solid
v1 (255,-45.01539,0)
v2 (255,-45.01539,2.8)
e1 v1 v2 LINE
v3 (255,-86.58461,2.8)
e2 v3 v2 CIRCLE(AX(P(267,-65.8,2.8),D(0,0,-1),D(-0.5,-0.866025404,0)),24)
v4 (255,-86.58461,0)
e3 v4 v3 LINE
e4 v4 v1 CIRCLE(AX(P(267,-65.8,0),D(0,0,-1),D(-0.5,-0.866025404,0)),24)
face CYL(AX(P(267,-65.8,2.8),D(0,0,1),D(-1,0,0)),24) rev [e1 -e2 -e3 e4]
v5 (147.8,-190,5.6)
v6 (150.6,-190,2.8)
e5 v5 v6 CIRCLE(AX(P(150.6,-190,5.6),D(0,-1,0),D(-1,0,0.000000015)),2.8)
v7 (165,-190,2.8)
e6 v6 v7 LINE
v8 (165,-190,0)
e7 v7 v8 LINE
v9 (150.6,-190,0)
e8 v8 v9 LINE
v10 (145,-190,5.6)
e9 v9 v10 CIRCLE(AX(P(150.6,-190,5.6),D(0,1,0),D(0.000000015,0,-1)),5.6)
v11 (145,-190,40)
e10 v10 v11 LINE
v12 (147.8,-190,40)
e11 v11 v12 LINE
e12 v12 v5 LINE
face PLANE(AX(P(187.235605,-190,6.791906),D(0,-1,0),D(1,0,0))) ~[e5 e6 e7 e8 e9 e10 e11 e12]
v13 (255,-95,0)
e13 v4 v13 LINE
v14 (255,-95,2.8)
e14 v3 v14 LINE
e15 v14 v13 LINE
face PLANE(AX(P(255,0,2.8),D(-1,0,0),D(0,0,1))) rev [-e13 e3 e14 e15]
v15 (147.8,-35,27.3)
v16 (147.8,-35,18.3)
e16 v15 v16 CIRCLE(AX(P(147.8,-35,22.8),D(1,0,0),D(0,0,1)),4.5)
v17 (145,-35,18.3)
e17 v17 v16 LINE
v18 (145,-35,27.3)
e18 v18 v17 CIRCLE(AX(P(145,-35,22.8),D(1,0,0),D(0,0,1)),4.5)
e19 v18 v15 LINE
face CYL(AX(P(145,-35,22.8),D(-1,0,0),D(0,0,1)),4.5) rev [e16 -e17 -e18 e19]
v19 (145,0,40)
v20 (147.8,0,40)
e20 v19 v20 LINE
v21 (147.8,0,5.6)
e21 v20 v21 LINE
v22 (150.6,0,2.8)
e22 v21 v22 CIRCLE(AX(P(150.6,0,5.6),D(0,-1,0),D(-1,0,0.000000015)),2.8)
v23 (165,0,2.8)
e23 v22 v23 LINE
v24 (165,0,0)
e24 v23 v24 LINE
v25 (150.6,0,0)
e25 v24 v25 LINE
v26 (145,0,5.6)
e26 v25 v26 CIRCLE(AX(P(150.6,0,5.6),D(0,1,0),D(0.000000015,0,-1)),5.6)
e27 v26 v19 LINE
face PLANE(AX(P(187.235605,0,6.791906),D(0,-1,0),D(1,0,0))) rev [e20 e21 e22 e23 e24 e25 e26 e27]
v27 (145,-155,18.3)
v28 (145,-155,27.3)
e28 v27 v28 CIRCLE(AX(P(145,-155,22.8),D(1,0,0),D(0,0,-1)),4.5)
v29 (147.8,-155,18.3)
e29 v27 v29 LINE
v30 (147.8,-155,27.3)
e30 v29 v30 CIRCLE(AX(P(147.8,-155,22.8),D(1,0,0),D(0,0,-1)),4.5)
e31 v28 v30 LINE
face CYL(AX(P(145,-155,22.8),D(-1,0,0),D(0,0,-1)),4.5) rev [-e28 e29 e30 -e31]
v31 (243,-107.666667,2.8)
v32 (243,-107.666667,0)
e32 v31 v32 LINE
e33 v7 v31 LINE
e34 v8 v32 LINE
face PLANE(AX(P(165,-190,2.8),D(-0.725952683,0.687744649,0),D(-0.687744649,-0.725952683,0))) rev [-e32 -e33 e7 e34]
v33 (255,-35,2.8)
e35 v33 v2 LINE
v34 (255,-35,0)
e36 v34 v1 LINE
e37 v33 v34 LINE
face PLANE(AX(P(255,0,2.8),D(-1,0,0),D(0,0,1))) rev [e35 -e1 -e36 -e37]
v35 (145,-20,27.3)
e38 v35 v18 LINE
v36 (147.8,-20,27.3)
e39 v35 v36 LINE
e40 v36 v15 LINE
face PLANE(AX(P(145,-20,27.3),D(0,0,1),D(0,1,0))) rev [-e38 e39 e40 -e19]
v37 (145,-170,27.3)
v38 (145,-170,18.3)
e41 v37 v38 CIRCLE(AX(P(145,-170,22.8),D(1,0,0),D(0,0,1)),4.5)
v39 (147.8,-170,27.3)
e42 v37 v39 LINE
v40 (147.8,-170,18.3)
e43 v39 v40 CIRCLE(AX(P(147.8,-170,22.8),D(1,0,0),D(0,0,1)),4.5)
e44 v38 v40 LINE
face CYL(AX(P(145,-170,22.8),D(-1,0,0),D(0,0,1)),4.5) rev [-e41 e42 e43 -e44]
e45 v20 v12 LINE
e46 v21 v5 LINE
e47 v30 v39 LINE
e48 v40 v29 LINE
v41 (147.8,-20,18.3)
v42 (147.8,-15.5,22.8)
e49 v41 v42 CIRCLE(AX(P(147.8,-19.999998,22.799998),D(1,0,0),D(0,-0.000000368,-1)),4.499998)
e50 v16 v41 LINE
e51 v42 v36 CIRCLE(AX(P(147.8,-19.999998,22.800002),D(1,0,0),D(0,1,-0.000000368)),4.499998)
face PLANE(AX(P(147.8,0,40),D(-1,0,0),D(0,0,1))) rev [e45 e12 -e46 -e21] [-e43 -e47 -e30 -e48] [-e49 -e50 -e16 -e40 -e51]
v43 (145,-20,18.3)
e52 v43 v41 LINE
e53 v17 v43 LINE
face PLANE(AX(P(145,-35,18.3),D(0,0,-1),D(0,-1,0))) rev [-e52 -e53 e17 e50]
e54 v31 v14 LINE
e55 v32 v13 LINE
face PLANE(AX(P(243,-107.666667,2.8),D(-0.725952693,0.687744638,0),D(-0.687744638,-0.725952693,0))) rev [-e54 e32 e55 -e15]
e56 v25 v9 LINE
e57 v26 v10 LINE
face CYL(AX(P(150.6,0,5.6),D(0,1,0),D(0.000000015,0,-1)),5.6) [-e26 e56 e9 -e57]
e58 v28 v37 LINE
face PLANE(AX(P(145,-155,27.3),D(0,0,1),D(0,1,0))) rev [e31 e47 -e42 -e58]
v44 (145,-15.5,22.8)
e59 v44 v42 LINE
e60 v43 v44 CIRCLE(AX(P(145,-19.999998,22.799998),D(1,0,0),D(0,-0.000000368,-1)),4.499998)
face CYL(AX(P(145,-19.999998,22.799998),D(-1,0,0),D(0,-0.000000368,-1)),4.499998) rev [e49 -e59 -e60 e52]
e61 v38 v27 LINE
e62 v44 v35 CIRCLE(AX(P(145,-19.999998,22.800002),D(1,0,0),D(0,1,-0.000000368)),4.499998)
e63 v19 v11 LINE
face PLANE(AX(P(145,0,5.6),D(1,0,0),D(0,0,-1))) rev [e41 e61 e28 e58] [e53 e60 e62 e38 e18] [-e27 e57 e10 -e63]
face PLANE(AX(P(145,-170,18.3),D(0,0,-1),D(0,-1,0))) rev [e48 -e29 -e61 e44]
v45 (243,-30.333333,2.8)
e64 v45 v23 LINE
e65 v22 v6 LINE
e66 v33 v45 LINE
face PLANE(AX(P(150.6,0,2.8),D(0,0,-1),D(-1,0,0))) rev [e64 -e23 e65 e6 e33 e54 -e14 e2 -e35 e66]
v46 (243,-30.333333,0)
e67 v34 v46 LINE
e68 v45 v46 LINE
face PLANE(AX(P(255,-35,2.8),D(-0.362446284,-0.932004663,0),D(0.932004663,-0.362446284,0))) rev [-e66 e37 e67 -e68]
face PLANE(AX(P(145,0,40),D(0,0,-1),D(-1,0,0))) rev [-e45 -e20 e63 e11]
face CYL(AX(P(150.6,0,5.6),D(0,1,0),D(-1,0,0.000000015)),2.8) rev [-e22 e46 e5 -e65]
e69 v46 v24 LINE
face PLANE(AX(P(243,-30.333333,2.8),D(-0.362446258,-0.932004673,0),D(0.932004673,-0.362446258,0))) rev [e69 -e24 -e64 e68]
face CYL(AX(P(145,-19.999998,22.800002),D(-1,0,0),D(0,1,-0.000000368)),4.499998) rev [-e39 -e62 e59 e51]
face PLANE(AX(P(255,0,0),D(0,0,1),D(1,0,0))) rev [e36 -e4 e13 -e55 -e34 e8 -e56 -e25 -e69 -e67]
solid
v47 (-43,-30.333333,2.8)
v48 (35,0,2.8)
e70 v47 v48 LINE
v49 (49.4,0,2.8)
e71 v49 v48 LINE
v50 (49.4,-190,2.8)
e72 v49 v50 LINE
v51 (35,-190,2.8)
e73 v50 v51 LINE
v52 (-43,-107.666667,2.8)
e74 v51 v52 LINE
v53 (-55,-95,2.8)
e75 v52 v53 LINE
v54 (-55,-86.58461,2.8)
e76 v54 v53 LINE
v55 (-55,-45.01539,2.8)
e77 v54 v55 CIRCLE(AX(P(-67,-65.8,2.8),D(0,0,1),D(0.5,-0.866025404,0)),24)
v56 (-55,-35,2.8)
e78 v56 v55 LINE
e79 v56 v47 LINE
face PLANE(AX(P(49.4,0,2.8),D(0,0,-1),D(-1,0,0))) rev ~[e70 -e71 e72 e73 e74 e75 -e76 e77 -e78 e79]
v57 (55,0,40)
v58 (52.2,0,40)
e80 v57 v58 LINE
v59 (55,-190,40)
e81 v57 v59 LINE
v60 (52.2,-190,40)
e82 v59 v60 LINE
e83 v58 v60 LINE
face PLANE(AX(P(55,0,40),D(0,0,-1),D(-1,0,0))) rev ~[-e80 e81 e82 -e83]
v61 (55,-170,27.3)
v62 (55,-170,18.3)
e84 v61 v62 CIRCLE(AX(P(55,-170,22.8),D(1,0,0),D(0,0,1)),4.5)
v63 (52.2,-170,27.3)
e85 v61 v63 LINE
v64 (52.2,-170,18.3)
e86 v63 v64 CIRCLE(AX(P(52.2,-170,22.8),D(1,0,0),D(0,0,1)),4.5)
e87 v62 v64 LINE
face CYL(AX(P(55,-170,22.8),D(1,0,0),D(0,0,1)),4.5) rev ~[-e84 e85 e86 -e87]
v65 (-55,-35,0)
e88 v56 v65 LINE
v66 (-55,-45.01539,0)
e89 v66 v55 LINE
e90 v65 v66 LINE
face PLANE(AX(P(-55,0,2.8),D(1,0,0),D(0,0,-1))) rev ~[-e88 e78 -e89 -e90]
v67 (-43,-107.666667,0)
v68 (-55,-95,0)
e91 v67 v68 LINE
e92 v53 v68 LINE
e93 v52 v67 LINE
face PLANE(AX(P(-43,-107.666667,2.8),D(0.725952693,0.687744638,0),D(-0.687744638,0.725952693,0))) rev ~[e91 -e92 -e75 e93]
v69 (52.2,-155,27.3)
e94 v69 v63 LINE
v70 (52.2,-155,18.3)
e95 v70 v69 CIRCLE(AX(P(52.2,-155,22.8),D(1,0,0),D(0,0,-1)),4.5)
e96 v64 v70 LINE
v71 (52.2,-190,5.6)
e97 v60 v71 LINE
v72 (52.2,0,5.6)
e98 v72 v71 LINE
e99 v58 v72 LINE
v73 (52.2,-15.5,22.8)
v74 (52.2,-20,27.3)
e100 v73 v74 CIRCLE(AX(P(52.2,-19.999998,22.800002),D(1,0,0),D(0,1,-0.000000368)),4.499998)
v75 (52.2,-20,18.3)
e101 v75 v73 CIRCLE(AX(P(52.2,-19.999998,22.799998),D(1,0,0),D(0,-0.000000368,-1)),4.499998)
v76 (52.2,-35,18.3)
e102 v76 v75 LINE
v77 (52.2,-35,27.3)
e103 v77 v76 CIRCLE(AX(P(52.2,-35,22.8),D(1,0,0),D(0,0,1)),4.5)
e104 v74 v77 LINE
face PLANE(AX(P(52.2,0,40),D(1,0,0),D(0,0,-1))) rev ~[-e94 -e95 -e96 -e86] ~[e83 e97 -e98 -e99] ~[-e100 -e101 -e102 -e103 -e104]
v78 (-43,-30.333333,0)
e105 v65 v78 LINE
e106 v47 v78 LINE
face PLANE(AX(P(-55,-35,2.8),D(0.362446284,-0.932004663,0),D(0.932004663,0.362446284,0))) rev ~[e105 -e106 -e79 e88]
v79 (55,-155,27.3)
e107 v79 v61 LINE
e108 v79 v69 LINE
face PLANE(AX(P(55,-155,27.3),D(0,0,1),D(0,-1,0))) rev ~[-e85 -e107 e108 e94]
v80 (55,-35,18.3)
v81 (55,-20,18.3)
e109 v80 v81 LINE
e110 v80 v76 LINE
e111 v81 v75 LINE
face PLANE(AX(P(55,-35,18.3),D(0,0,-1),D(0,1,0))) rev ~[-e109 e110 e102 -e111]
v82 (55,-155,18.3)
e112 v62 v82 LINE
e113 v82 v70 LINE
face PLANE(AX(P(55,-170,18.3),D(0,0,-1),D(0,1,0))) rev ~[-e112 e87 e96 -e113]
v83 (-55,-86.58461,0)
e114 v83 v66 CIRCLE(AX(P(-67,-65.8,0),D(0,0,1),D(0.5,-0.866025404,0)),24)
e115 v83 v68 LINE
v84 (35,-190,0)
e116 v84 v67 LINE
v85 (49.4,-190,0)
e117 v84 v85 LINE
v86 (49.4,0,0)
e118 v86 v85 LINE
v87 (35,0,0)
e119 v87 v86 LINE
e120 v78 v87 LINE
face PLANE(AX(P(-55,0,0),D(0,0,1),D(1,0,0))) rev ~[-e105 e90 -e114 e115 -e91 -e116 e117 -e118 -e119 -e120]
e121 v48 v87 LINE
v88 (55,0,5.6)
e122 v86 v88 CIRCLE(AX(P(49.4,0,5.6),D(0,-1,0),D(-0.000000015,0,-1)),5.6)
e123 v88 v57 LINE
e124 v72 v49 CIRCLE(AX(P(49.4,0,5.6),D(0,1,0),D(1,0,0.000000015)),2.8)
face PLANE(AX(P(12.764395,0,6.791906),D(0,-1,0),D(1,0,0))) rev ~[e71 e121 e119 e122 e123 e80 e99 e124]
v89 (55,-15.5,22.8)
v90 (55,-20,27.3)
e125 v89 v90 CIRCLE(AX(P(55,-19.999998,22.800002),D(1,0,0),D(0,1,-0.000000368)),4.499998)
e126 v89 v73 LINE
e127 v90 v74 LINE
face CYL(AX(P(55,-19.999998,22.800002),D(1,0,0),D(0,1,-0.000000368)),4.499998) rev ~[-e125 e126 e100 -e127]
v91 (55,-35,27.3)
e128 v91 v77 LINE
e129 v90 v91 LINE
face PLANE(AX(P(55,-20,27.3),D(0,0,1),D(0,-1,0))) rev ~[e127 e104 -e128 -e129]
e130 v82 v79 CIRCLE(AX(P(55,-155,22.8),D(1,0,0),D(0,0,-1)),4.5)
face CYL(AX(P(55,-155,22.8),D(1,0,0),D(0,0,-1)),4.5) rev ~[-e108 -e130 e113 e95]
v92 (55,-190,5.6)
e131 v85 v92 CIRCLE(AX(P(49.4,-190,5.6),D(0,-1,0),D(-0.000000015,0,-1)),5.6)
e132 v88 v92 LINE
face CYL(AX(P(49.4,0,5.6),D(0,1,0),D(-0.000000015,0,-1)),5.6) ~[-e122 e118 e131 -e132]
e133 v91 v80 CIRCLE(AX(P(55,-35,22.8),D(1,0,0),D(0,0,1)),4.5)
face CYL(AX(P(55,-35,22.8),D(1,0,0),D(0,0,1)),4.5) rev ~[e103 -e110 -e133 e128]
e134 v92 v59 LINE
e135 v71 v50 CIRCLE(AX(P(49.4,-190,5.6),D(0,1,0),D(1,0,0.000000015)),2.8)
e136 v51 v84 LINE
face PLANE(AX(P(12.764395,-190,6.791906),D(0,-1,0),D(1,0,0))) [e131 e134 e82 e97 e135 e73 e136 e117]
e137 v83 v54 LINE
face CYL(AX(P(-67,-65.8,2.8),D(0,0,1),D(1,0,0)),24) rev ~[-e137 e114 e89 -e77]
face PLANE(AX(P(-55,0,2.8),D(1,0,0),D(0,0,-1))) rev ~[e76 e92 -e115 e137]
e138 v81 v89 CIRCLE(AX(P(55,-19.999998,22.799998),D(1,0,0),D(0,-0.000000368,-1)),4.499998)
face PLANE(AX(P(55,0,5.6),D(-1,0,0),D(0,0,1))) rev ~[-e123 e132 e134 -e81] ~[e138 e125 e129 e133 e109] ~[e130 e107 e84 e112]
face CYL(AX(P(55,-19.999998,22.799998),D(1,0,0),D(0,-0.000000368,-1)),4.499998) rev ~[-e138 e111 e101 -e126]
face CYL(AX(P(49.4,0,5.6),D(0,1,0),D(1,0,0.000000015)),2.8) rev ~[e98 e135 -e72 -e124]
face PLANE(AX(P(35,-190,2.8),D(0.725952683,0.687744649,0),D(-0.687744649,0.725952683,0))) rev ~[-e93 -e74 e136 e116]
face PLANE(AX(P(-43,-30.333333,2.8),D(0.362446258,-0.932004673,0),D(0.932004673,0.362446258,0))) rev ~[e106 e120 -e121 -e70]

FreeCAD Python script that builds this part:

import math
import FreeCAD as App
import Part
import Sketcher

V = App.Vector
Q = App.Units.Quantity


def add_polygon(sketch, points):
    """Adds a closed chain of lines whose ends are joined by coincident constraints."""
    first, n = sketch.GeometryCount, len(points)
    for a, b in zip(points, points[1:] + points[:1]):
        sketch.addGeometry(Part.LineSegment(App.Vector(*a, 0), App.Vector(*b, 0)), False)
    for i in range(n):
        sketch.addConstraint(Sketcher.Constraint("Coincident", first + i, 2, first + (i + 1) % n, 1))

doc = App.newDocument("Part")
body = doc.addObject("PartDesign::Body", "Body")

# Sketch on XZ plane
sketch1 = doc.addObject("Sketcher::SketchObject", "Sketch")
body.addObject(sketch1)
sketch1.AttachmentSupport = (doc.XZ_Plane, [""])
sketch1.MapMode = "FlatFace"
sketch1.addGeometry(Part.LineSegment(V(-55, 0, 0), V(49.4, 0, 0)), False)
sketch1.addGeometry(Part.ArcOfCircle(Part.Circle(V(49.4, 5.6, 0), V(0, 0, 1), 5.6), math.radians(-90), math.radians(0)), False)
sketch1.addGeometry(Part.LineSegment(V(55, 5.6, 0), V(55, 40, 0)), False)
sketch1.addGeometry(Part.LineSegment(V(55, 40, 0), V(52.2, 40, 0)), False)
sketch1.addGeometry(Part.LineSegment(V(52.2, 40, 0), V(52.2, 5.6, 0)), False)
sketch1.addGeometry(Part.ArcOfCircle(Part.Circle(V(49.4, 5.6, 0), V(0, 0, 1), 2.8), math.radians(-90), math.radians(0)), False)
sketch1.addGeometry(Part.LineSegment(V(49.4, 2.8, 0), V(-55, 2.8, 0)), False)
sketch1.addGeometry(Part.LineSegment(V(-55, 2.8, 0), V(-55, 0, 0)), False)
sketch1.addConstraint(Sketcher.Constraint("Tangent", 0, 2, 1, 1))
sketch1.addConstraint(Sketcher.Constraint("Tangent", 1, 2, 2, 1))
sketch1.addConstraint(Sketcher.Constraint("Coincident", 2, 2, 3, 1))
sketch1.addConstraint(Sketcher.Constraint("Coincident", 3, 2, 4, 1))
sketch1.addConstraint(Sketcher.Constraint("Tangent", 4, 2, 5, 2))
sketch1.addConstraint(Sketcher.Constraint("Tangent", 5, 1, 6, 1))
sketch1.addConstraint(Sketcher.Constraint("Coincident", 6, 2, 7, 1))
sketch1.addConstraint(Sketcher.Constraint("Coincident", 7, 2, 0, 1))
sketch1.addConstraint(Sketcher.Constraint("Horizontal", 0))
sketch1.addConstraint(Sketcher.Constraint("Vertical", 2))
sketch1.addConstraint(Sketcher.Constraint("Horizontal", 3))
sketch1.addConstraint(Sketcher.Constraint("Vertical", 4))
sketch1.addConstraint(Sketcher.Constraint("Horizontal", 6))
sketch1.addConstraint(Sketcher.Constraint("Vertical", 7))
sketch1.addConstraint(Sketcher.Constraint("Coincident", 5, 3, 1, 3))
sketch1.addConstraint(Sketcher.Constraint("PointOnObject", 0, 2, -1))
sketch1.addConstraint(Sketcher.Constraint("Radius", 1, Q("5.6 mm")))
sketch1.addConstraint(Sketcher.Constraint("Radius", 5, Q("2.8 mm")))
sketch1.addConstraint(Sketcher.Constraint("DistanceX", 0, 1, 0, 2, Q("104.4 mm")))
sketch1.addConstraint(Sketcher.Constraint("DistanceY", 2, 1, 2, 2, Q("34.4 mm")))
sketch1.addConstraint(Sketcher.Constraint("DistanceX", -1, 1, 1, 2, Q("55 mm")))
pad1 = doc.addObject("PartDesign::Pad", "Pad")
body.addObject(pad1)
pad1.Profile = sketch1
pad1.Length = 190

# Sketch on XY plane
sketch2 = doc.addObject("Sketcher::SketchObject", "Sketch001")
body.addObject(sketch2)
sketch2.AttachmentSupport = (doc.XY_Plane, [""])
sketch2.MapMode = "FlatFace"
sketch2.AttachmentOffset = App.Placement(V(0, 0, 2.8), App.Rotation())
add_polygon(sketch2, [(-55, 0), (-55, -35), (-43, -30), (35, 0)])  # lines 0-3
add_polygon(sketch2, [(35, -190), (-43, -108), (-55, -95), (-55, -190)])  # lines 4-7
sketch2.addGeometry(Part.Circle(V(-67, -66, 0), V(0, 0, 1), 24), False)  # 8
sketch2.addConstraint(Sketcher.Constraint("Vertical", 0))
sketch2.addConstraint(Sketcher.Constraint("Horizontal", 3))
sketch2.addConstraint(Sketcher.Constraint("Vertical", 6))
sketch2.addConstraint(Sketcher.Constraint("Horizontal", 7))
sketch2.addConstraint(Sketcher.Constraint("PointOnObject", 2, 2, -1))
sketch2.addConstraint(Sketcher.Constraint("Parallel", 1, 2))
sketch2.addConstraint(Sketcher.Constraint("Parallel", 4, 5))
sketch2.addConstraint(Sketcher.Constraint("Vertical", 1, 2, 4, 2))
sketch2.addConstraint(Sketcher.Constraint("Vertical", 3, 2, 5, 2))
sketch2.addConstraint(Sketcher.Constraint("Vertical", 2, 2, 7, 2))
sketch2.addConstraint(Sketcher.Constraint("Diameter", 8, Q("48 mm")))
sketch2.addConstraint(Sketcher.Constraint("DistanceX", 3, 2, 3, 1, Q("90 mm")))
sketch2.addConstraint(Sketcher.Constraint("DistanceY", 0, 2, 0, 1, Q("35 mm")))
sketch2.addConstraint(Sketcher.Constraint("DistanceY", 6, 2, 6, 1, Q("95 mm")))
sketch2.addConstraint(Sketcher.Constraint("DistanceX", 8, 3, -1, 1, Q("67 mm")))
sketch2.addConstraint(Sketcher.Constraint("DistanceX", 0, 2, -1, 1, Q("55 mm")))
sketch2.addConstraint(Sketcher.Constraint("DistanceX", 1, 2, -1, 1, Q("43 mm")))
sketch2.addConstraint(Sketcher.Constraint("DistanceY", 5, 2, -1, 1, Q("95 mm")))
sketch2.addConstraint(Sketcher.Constraint("DistanceY", 8, 3, -1, 1, Q("65.8 mm")))
pocket1 = doc.addObject("PartDesign::Pocket", "Pocket")
body.addObject(pocket1)
pocket1.Profile = sketch2
pocket1.Length = 3

# Sketch on YZ plane
sketch3 = doc.addObject("Sketcher::SketchObject", "Sketch002")
body.addObject(sketch3)
sketch3.AttachmentSupport = (doc.YZ_Plane, [""])
sketch3.MapMode = "FlatFace"
sketch3.AttachmentOffset = App.Placement(V(0, 0, 55), App.Rotation())
sketch3.addGeometry(Part.LineSegment(V(-35, 18.3, 0), V(-20, 18.3, 0)), False)
sketch3.addGeometry(Part.ArcOfCircle(Part.Circle(V(-20, 22.8, 0), V(0, 0, 1), 4.5), math.radians(-90), math.radians(0)), False)
sketch3.addGeometry(Part.ArcOfCircle(Part.Circle(V(-20, 22.8, 0), V(0, 0, 1), 4.5), math.radians(0), math.radians(90)), False)
sketch3.addGeometry(Part.LineSegment(V(-20, 27.3, 0), V(-35, 27.3, 0)), False)
sketch3.addGeometry(Part.ArcOfCircle(Part.Circle(V(-35, 22.8, 0), V(0, 0, 1), 4.5), math.radians(90), math.radians(270)), False)
sketch3.addGeometry(Part.LineSegment(V(-170, 18.3, 0), V(-155, 18.3, 0)), False)
sketch3.addGeometry(Part.ArcOfCircle(Part.Circle(V(-155, 22.8, 0), V(0, 0, 1), 4.5), math.radians(-90), math.radians(90)), False)
sketch3.addGeometry(Part.LineSegment(V(-155, 27.3, 0), V(-170, 27.3, 0)), False)
sketch3.addGeometry(Part.ArcOfCircle(Part.Circle(V(-170, 22.8, 0), V(0, 0, 1), 4.5), math.radians(90), math.radians(270)), False)
sketch3.addConstraint(Sketcher.Constraint("Tangent", 0, 2, 1, 1))
sketch3.addConstraint(Sketcher.Constraint("Tangent", 1, 2, 2, 1))
sketch3.addConstraint(Sketcher.Constraint("Tangent", 2, 2, 3, 1))
sketch3.addConstraint(Sketcher.Constraint("Tangent", 3, 2, 4, 1))
sketch3.addConstraint(Sketcher.Constraint("Tangent", 4, 2, 0, 1))
sketch3.addConstraint(Sketcher.Constraint("Tangent", 5, 2, 6, 1))
sketch3.addConstraint(Sketcher.Constraint("Tangent", 6, 2, 7, 1))
sketch3.addConstraint(Sketcher.Constraint("Tangent", 7, 2, 8, 1))
sketch3.addConstraint(Sketcher.Constraint("Tangent", 8, 2, 5, 1))
sketch3.addConstraint(Sketcher.Constraint("Horizontal", 0))
sketch3.addConstraint(Sketcher.Constraint("Horizontal", 3))
sketch3.addConstraint(Sketcher.Constraint("Horizontal", 5))
sketch3.addConstraint(Sketcher.Constraint("Horizontal", 7))
sketch3.addConstraint(Sketcher.Constraint("Equal", 1, 2))
sketch3.addConstraint(Sketcher.Constraint("Equal", 4, 6))
sketch3.addConstraint(Sketcher.Constraint("Horizontal", 4, 3, 6, 3))
sketch3.addConstraint(Sketcher.Constraint("Horizontal", 8, 3, 1, 2))
sketch3.addConstraint(Sketcher.Constraint("Equal", 3, 5))
sketch3.addConstraint(Sketcher.Constraint("Radius", 1, Q("4.499998 mm")))
sketch3.addConstraint(Sketcher.Constraint("DistanceX", 0, 1, 0, 2, Q("15 mm")))
sketch3.addConstraint(Sketcher.Constraint("DistanceX", 1, 3, -1, 1, Q("19.999998 mm")))
sketch3.addConstraint(Sketcher.Constraint("DistanceX", 6, 3, -1, 1, Q("155 mm")))
sketch3.addConstraint(Sketcher.Constraint("DistanceY", -1, 1, 1, 3, Q("22.799998 mm")))
pocket2 = doc.addObject("PartDesign::Pocket", "Pocket001")
body.addObject(pocket2)
pocket2.Profile = sketch3
pocket2.Length = 3
body2 = doc.addObject("PartDesign::Body", "Body001")
doc.recompute()

mirroring = doc.addObject("Part::Mirroring", "Mirroring")
mirroring.Source = body
mirroring.Base = V(100, 0, 0)
mirroring.Normal = V(1, 0, 0)
body2.BaseFeature = mirroring
doc.recompute()
mirroring.Visibility = False

doc.recompute()
